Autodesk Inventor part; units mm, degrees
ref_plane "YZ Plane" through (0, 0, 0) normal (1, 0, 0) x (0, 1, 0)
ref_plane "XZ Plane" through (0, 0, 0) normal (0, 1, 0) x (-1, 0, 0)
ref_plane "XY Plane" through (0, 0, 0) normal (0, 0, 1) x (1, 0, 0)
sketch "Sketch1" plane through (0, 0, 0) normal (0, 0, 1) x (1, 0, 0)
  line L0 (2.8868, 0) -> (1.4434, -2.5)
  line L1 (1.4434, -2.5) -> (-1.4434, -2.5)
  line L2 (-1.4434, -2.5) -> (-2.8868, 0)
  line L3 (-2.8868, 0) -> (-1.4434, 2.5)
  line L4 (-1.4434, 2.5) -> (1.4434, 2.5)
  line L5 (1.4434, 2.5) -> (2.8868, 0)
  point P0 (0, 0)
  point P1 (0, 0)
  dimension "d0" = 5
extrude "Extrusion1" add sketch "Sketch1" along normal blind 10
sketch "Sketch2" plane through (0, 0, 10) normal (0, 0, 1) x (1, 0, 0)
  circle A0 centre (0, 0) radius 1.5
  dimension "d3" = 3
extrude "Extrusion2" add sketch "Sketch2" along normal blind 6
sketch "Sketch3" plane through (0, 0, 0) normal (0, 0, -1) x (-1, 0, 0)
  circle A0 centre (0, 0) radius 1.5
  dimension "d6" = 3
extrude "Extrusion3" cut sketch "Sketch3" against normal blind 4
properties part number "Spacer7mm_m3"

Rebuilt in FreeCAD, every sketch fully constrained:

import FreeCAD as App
import Part
import Sketcher
Q = App.Units.Quantity


def add_polygon(sketch, points):
    """Adds a closed chain of lines whose ends are joined by coincident constraints."""
    first, n = sketch.GeometryCount, len(points)
    for a, b in zip(points, points[1:] + points[:1]):
        sketch.addGeometry(Part.LineSegment(App.Vector(*a, 0), App.Vector(*b, 0)), False)
    for i in range(n):
        sketch.addConstraint(Sketcher.Constraint("Coincident", first + i, 2, first + (i + 1) % n, 1))

doc = App.newDocument("Part")
body = doc.addObject("PartDesign::Body", "Body")

# Sketch on XY plane
sketch1 = body.newObject("Sketcher::SketchObject", "Sketch")
sketch1.AttachmentSupport = (doc.getObject("XY_Plane"), [""])
sketch1.MapMode = "FlatFace"
add_polygon(sketch1, [(1.4434, -2.5), (2.8868, 0), (1.4434, 2.5), (-1.4434, 2.5), (-2.8868, 0), (-1.4434, -2.5)])  # lines 0-5
sketch1.addConstraint([
    Sketcher.Constraint("Horizontal", 2),
    Sketcher.Constraint("Horizontal", 5),
    Sketcher.Constraint("Symmetric", 0, 2, 3, 2, -1, 1),
    Sketcher.Constraint("Symmetric", 1, 2, 4, 2, -1, 1),
    Sketcher.Constraint("PointOnObject", 0, 2, -1),
    Sketcher.Constraint("Parallel", 0, 3),
    Sketcher.Constraint("Vertical", 2, 2, 4, 2),
    Sketcher.Constraint("DistanceY", 4, 2, 2, 2, 5.0),
    Sketcher.Constraint("Angle", 0, Q("59.9996 deg")),
    Sketcher.Constraint("DistanceX", 2, 2, 2, 1, 2.8868),
])
pad1 = body.newObject("PartDesign::Pad", "Pad")
pad1.Profile = sketch1
pad1.Length = 10

# Sketch on XY plane
sketch2 = body.newObject("Sketcher::SketchObject", "Sketch001")
sketch2.AttachmentSupport = (doc.getObject("XY_Plane"), [""])
sketch2.MapMode = "FlatFace"
sketch2.AttachmentOffset = App.Placement(App.Vector(0, 0, 10), App.Rotation())
sketch2.addGeometry(Part.Circle(App.Vector(0, 0, 0), App.Vector(0, 0, 1), 1.5), False)
sketch2.addConstraint([
    Sketcher.Constraint("Coincident", 0, 3, -1, 1),
    Sketcher.Constraint("Diameter", 0, 3.0),
])
pad2 = body.newObject("PartDesign::Pad", "Pad001")
pad2.Profile = sketch2
pad2.Length = 6

# Sketch on XY plane
sketch3 = body.newObject("Sketcher::SketchObject", "Sketch002")
sketch3.AttachmentSupport = (doc.getObject("XY_Plane"), [""])
sketch3.MapMode = "FlatFace"
sketch3.addGeometry(Part.Circle(App.Vector(0, 0, 0), App.Vector(0, 0, 1), 1.5), False)
sketch3.addConstraint([
    Sketcher.Constraint("Coincident", 0, 3, -1, 1),
    Sketcher.Constraint("Diameter", 0, 3.0),
])
pocket1 = body.newObject("PartDesign::Pocket", "Pocket")
pocket1.Profile = sketch3
pocket1.Length = 4
pocket1.Reversed = True

doc.recompute()
